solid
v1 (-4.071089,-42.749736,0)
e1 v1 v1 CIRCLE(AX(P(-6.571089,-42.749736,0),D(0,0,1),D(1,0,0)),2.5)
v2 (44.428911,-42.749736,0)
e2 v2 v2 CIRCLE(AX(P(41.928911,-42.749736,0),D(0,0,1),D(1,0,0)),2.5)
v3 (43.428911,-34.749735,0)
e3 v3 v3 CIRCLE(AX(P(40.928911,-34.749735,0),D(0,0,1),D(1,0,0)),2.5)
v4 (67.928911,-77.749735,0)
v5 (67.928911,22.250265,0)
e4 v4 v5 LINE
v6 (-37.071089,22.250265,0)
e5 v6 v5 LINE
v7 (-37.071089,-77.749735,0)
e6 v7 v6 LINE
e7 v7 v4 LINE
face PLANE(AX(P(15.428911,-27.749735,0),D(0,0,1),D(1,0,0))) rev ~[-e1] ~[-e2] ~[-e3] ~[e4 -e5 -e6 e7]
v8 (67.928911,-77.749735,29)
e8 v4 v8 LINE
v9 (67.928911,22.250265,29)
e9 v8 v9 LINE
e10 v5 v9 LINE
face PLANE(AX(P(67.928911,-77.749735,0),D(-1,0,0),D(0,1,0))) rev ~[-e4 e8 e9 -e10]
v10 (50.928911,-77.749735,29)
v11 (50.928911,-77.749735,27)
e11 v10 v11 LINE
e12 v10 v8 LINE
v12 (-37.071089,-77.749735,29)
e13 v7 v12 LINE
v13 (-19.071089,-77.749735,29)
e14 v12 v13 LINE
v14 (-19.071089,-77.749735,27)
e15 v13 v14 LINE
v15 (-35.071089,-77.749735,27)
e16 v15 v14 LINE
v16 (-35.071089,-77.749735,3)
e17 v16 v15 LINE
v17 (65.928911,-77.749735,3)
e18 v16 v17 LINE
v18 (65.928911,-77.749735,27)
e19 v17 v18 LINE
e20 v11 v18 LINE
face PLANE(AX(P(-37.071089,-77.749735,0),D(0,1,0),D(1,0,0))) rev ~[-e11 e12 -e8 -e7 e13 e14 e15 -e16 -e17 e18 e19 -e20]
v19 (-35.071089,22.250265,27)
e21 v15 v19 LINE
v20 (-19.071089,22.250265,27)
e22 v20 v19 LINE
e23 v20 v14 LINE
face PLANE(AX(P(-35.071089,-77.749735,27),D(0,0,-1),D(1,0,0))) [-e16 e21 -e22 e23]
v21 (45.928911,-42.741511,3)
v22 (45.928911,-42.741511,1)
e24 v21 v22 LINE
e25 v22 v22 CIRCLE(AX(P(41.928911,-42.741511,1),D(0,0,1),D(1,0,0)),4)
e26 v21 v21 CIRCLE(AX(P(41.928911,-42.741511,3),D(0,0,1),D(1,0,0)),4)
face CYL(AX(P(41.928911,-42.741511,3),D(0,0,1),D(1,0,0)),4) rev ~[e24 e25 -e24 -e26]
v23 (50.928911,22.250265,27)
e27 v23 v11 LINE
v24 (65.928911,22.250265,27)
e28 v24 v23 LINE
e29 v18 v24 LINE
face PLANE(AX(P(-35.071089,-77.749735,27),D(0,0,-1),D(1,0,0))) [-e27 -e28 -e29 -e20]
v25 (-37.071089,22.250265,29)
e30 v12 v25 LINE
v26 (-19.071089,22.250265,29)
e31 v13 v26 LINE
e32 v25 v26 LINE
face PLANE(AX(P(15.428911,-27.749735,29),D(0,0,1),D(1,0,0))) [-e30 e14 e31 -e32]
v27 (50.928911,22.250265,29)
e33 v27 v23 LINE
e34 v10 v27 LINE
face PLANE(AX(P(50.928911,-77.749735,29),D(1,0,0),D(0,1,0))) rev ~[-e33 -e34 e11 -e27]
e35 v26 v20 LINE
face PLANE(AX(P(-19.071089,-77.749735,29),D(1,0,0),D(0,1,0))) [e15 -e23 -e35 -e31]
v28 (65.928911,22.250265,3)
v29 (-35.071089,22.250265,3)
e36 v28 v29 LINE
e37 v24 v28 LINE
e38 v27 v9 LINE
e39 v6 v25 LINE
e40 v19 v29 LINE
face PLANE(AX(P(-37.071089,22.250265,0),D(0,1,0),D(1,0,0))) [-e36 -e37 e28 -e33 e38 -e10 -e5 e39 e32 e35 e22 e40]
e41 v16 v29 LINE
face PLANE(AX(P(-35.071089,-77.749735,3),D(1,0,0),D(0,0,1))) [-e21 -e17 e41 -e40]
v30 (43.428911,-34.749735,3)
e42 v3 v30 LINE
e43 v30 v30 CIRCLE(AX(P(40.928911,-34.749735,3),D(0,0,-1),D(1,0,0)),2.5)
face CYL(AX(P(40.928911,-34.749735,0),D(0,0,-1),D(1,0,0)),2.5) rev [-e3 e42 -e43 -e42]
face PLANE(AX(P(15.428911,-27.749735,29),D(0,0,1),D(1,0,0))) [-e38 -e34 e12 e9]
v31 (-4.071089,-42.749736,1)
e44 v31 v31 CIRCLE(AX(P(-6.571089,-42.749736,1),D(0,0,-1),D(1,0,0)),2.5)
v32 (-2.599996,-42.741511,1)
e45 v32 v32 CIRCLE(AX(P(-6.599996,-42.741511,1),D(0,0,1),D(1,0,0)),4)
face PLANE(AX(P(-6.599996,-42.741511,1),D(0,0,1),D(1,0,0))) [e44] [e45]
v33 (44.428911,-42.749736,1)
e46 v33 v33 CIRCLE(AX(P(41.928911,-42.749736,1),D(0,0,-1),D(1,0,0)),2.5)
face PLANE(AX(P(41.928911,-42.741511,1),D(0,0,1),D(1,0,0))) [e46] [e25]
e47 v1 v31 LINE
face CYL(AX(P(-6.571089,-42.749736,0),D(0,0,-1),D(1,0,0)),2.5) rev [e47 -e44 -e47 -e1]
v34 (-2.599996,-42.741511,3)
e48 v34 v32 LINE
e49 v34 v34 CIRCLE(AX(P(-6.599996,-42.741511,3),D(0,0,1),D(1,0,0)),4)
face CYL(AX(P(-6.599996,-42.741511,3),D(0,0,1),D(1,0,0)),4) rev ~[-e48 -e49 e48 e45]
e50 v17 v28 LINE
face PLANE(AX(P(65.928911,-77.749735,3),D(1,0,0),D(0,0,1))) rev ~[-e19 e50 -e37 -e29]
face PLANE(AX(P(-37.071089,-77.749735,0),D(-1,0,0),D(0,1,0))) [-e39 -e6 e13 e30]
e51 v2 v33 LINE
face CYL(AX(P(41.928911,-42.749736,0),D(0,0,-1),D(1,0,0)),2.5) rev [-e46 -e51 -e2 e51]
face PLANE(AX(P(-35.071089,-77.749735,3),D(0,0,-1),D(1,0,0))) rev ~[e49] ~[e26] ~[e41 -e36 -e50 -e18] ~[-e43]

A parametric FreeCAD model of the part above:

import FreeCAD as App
import Part
import Sketcher
from FreeCAD import Vector

doc = App.newDocument("Part")
body = doc.addObject("PartDesign::Body", "Body")

# Sketch on XY plane
sketch1 = body.newObject("Sketcher::SketchObject", "Sketch")
sketch1.AttachmentSupport = (doc.getObject("XY_Plane"), [""])
sketch1.MapMode = "FlatFace"
sketch1.addGeometry(Part.LineSegment(Vector(-37, 22, 0), Vector(-37, -78, 0)), False)
sketch1.addGeometry(Part.LineSegment(Vector(-37, -78, 0), Vector(68, -78, 0)), False)
sketch1.addGeometry(Part.LineSegment(Vector(68, -78, 0), Vector(68, 22, 0)), False)
sketch1.addGeometry(Part.LineSegment(Vector(68, 22, 0), Vector(-37, 22, 0)), False)
sketch1.addConstraint(Sketcher.Constraint("Coincident", 0, 2, 1, 1))
sketch1.addConstraint(Sketcher.Constraint("Coincident", 1, 2, 2, 1))
sketch1.addConstraint(Sketcher.Constraint("Coincident", 2, 2, 3, 1))
sketch1.addConstraint(Sketcher.Constraint("Coincident", 3, 2, 0, 1))
sketch1.addConstraint(Sketcher.Constraint("Vertical", 0))
sketch1.addConstraint(Sketcher.Constraint("Horizontal", 1))
sketch1.addConstraint(Sketcher.Constraint("Vertical", 2))
sketch1.addConstraint(Sketcher.Constraint("Horizontal", 3))
sketch1.addConstraint(Sketcher.Constraint("DistanceX", 1, 1, 1, 2, 105.0))
sketch1.addConstraint(Sketcher.Constraint("DistanceY", 0, 2, 0, 1, 100.0))
sketch1.addConstraint(Sketcher.Constraint("DistanceX", 0, 2, -1, 1, 37.071089))
sketch1.addConstraint(Sketcher.Constraint("DistanceY", 0, 2, -1, 1, 77.749735))
pad1 = body.newObject("PartDesign::Pad", "Pad")
pad1.Profile = sketch1
pad1.Length = 29

# Sketch on XZ plane
sketch2 = body.newObject("Sketcher::SketchObject", "Sketch001")
sketch2.AttachmentSupport = (doc.getObject("XZ_Plane"), [""])
sketch2.MapMode = "FlatFace"
sketch2.AttachmentOffset = App.Placement(Vector(0, 0, 77.749735), App.Rotation())
sketch2.addGeometry(Part.LineSegment(Vector(-35, 27, 0), Vector(-35, 3, 0)), False)
sketch2.addGeometry(Part.LineSegment(Vector(-35, 3, 0), Vector(66, 3, 0)), False)
sketch2.addGeometry(Part.LineSegment(Vector(66, 3, 0), Vector(66, 27, 0)), False)
sketch2.addGeometry(Part.LineSegment(Vector(66, 27, 0), Vector(-35, 27, 0)), False)
sketch2.addConstraint(Sketcher.Constraint("Coincident", 0, 2, 1, 1))
sketch2.addConstraint(Sketcher.Constraint("Coincident", 1, 2, 2, 1))
sketch2.addConstraint(Sketcher.Constraint("Coincident", 2, 2, 3, 1))
sketch2.addConstraint(Sketcher.Constraint("Coincident", 3, 2, 0, 1))
sketch2.addConstraint(Sketcher.Constraint("Vertical", 0))
sketch2.addConstraint(Sketcher.Constraint("Horizontal", 1))
sketch2.addConstraint(Sketcher.Constraint("Vertical", 2))
sketch2.addConstraint(Sketcher.Constraint("Horizontal", 3))
sketch2.addConstraint(Sketcher.Constraint("DistanceX", 1, 1, 1, 2, 101.0))
sketch2.addConstraint(Sketcher.Constraint("DistanceY", 0, 2, 0, 1, 24.0))
sketch2.addConstraint(Sketcher.Constraint("DistanceY", -1, 1, 0, 2, 3.0))
sketch2.addConstraint(Sketcher.Constraint("DistanceX", 0, 2, -1, 1, 35.071089))
pocket1 = body.newObject("PartDesign::Pocket", "Pocket")
pocket1.Profile = sketch2
pocket1.Length = 110

# Sketch on XY plane
sketch3 = body.newObject("Sketcher::SketchObject", "Sketch002")
sketch3.AttachmentSupport = (doc.getObject("XY_Plane"), [""])
sketch3.MapMode = "FlatFace"
sketch3.AttachmentOffset = App.Placement(Vector(0, 0, 29), App.Rotation())
sketch3.addGeometry(Part.LineSegment(Vector(-19, 22, 0), Vector(-19, -78, 0)), False)
sketch3.addGeometry(Part.LineSegment(Vector(-19, -78, 0), Vector(51, -78, 0)), False)
sketch3.addGeometry(Part.LineSegment(Vector(51, -78, 0), Vector(51, 22, 0)), False)
sketch3.addGeometry(Part.LineSegment(Vector(51, 22, 0), Vector(-19, 22, 0)), False)
sketch3.addConstraint(Sketcher.Constraint("Coincident", 0, 2, 1, 1))
sketch3.addConstraint(Sketcher.Constraint("Coincident", 1, 2, 2, 1))
sketch3.addConstraint(Sketcher.Constraint("Coincident", 2, 2, 3, 1))
sketch3.addConstraint(Sketcher.Constraint("Coincident", 3, 2, 0, 1))
sketch3.addConstraint(Sketcher.Constraint("Vertical", 0))
sketch3.addConstraint(Sketcher.Constraint("Horizontal", 1))
sketch3.addConstraint(Sketcher.Constraint("Vertical", 2))
sketch3.addConstraint(Sketcher.Constraint("Horizontal", 3))
sketch3.addConstraint(Sketcher.Constraint("DistanceX", 1, 1, 1, 2, 70.0))
sketch3.addConstraint(Sketcher.Constraint("DistanceY", 0, 2, 0, 1, 100.0))
sketch3.addConstraint(Sketcher.Constraint("DistanceX", 0, 2, -1, 1, 19.071089))
sketch3.addConstraint(Sketcher.Constraint("DistanceY", 0, 2, -1, 1, 77.749735))
pocket2 = body.newObject("PartDesign::Pocket", "Pocket001")
pocket2.Profile = sketch3
pocket2.Length = 5

# Sketch on XY plane
sketch4 = body.newObject("Sketcher::SketchObject", "Sketch003")
sketch4.AttachmentSupport = (doc.getObject("XY_Plane"), [""])
sketch4.MapMode = "FlatFace"
sketch4.addGeometry(Part.Circle(Vector(40.9, -34.7, 0), Vector(0, 0, 1), 2.5), False)
sketch4.addGeometry(Part.Circle(Vector(41.9, -42.7, 0), Vector(0, 0, 1), 2.5), False)
sketch4.addGeometry(Part.Circle(Vector(-6.6, -42.7, 0), Vector(0, 0, 1), 2.5), False)
sketch4.addConstraint(Sketcher.Constraint("Equal", 0, 1))
sketch4.addConstraint(Sketcher.Constraint("Equal", 1, 2))
sketch4.addConstraint(Sketcher.Constraint("Horizontal", 1, 3, 2, 3))
sketch4.addConstraint(Sketcher.Constraint("Diameter", 0, 5.0))
sketch4.addConstraint(Sketcher.Constraint("DistanceX", 0, 3, 1, 3, 1.0))
sketch4.addConstraint(Sketcher.Constraint("DistanceY", 1, 3, 0, 3, 8.000001))
sketch4.addConstraint(Sketcher.Constraint("DistanceX", 2, 3, 0, 3, 47.5))
sketch4.addConstraint(Sketcher.Constraint("DistanceX", -1, 1, 0, 3, 40.928911))
sketch4.addConstraint(Sketcher.Constraint("DistanceY", 0, 3, -1, 1, 34.749735))
pocket3 = body.newObject("PartDesign::Pocket", "Pocket002")
pocket3.Profile = sketch4
pocket3.Length = 5
pocket3.Reversed = True

# Sketch on XY plane
sketch5 = body.newObject("Sketcher::SketchObject", "Sketch004")
sketch5.AttachmentSupport = (doc.getObject("XY_Plane"), [""])
sketch5.MapMode = "FlatFace"
sketch5.AttachmentOffset = App.Placement(Vector(0, 0, 3), App.Rotation())
sketch5.addGeometry(Part.Circle(Vector(41.9, -42.7, 0), Vector(0, 0, 1), 4), False)
sketch5.addGeometry(Part.Circle(Vector(-6.6, -42.7, 0), Vector(0, 0, 1), 4), False)
sketch5.addConstraint(Sketcher.Constraint("Equal", 0, 1))
sketch5.addConstraint(Sketcher.Constraint("Horizontal", 0, 3, 1, 3))
sketch5.addConstraint(Sketcher.Constraint("Diameter", 0, 8.0))
sketch5.addConstraint(Sketcher.Constraint("DistanceX", -1, 1, 0, 3, 41.928911))
sketch5.addConstraint(Sketcher.Constraint("DistanceY", 0, 3, -1, 1, 42.741511))
sketch5.addConstraint(Sketcher.Constraint("DistanceX", 1, 3, -1, 1, 6.599996))
pocket4 = body.newObject("PartDesign::Pocket", "Pocket003")
pocket4.Profile = sketch5
pocket4.Length = 2

doc.recompute()
